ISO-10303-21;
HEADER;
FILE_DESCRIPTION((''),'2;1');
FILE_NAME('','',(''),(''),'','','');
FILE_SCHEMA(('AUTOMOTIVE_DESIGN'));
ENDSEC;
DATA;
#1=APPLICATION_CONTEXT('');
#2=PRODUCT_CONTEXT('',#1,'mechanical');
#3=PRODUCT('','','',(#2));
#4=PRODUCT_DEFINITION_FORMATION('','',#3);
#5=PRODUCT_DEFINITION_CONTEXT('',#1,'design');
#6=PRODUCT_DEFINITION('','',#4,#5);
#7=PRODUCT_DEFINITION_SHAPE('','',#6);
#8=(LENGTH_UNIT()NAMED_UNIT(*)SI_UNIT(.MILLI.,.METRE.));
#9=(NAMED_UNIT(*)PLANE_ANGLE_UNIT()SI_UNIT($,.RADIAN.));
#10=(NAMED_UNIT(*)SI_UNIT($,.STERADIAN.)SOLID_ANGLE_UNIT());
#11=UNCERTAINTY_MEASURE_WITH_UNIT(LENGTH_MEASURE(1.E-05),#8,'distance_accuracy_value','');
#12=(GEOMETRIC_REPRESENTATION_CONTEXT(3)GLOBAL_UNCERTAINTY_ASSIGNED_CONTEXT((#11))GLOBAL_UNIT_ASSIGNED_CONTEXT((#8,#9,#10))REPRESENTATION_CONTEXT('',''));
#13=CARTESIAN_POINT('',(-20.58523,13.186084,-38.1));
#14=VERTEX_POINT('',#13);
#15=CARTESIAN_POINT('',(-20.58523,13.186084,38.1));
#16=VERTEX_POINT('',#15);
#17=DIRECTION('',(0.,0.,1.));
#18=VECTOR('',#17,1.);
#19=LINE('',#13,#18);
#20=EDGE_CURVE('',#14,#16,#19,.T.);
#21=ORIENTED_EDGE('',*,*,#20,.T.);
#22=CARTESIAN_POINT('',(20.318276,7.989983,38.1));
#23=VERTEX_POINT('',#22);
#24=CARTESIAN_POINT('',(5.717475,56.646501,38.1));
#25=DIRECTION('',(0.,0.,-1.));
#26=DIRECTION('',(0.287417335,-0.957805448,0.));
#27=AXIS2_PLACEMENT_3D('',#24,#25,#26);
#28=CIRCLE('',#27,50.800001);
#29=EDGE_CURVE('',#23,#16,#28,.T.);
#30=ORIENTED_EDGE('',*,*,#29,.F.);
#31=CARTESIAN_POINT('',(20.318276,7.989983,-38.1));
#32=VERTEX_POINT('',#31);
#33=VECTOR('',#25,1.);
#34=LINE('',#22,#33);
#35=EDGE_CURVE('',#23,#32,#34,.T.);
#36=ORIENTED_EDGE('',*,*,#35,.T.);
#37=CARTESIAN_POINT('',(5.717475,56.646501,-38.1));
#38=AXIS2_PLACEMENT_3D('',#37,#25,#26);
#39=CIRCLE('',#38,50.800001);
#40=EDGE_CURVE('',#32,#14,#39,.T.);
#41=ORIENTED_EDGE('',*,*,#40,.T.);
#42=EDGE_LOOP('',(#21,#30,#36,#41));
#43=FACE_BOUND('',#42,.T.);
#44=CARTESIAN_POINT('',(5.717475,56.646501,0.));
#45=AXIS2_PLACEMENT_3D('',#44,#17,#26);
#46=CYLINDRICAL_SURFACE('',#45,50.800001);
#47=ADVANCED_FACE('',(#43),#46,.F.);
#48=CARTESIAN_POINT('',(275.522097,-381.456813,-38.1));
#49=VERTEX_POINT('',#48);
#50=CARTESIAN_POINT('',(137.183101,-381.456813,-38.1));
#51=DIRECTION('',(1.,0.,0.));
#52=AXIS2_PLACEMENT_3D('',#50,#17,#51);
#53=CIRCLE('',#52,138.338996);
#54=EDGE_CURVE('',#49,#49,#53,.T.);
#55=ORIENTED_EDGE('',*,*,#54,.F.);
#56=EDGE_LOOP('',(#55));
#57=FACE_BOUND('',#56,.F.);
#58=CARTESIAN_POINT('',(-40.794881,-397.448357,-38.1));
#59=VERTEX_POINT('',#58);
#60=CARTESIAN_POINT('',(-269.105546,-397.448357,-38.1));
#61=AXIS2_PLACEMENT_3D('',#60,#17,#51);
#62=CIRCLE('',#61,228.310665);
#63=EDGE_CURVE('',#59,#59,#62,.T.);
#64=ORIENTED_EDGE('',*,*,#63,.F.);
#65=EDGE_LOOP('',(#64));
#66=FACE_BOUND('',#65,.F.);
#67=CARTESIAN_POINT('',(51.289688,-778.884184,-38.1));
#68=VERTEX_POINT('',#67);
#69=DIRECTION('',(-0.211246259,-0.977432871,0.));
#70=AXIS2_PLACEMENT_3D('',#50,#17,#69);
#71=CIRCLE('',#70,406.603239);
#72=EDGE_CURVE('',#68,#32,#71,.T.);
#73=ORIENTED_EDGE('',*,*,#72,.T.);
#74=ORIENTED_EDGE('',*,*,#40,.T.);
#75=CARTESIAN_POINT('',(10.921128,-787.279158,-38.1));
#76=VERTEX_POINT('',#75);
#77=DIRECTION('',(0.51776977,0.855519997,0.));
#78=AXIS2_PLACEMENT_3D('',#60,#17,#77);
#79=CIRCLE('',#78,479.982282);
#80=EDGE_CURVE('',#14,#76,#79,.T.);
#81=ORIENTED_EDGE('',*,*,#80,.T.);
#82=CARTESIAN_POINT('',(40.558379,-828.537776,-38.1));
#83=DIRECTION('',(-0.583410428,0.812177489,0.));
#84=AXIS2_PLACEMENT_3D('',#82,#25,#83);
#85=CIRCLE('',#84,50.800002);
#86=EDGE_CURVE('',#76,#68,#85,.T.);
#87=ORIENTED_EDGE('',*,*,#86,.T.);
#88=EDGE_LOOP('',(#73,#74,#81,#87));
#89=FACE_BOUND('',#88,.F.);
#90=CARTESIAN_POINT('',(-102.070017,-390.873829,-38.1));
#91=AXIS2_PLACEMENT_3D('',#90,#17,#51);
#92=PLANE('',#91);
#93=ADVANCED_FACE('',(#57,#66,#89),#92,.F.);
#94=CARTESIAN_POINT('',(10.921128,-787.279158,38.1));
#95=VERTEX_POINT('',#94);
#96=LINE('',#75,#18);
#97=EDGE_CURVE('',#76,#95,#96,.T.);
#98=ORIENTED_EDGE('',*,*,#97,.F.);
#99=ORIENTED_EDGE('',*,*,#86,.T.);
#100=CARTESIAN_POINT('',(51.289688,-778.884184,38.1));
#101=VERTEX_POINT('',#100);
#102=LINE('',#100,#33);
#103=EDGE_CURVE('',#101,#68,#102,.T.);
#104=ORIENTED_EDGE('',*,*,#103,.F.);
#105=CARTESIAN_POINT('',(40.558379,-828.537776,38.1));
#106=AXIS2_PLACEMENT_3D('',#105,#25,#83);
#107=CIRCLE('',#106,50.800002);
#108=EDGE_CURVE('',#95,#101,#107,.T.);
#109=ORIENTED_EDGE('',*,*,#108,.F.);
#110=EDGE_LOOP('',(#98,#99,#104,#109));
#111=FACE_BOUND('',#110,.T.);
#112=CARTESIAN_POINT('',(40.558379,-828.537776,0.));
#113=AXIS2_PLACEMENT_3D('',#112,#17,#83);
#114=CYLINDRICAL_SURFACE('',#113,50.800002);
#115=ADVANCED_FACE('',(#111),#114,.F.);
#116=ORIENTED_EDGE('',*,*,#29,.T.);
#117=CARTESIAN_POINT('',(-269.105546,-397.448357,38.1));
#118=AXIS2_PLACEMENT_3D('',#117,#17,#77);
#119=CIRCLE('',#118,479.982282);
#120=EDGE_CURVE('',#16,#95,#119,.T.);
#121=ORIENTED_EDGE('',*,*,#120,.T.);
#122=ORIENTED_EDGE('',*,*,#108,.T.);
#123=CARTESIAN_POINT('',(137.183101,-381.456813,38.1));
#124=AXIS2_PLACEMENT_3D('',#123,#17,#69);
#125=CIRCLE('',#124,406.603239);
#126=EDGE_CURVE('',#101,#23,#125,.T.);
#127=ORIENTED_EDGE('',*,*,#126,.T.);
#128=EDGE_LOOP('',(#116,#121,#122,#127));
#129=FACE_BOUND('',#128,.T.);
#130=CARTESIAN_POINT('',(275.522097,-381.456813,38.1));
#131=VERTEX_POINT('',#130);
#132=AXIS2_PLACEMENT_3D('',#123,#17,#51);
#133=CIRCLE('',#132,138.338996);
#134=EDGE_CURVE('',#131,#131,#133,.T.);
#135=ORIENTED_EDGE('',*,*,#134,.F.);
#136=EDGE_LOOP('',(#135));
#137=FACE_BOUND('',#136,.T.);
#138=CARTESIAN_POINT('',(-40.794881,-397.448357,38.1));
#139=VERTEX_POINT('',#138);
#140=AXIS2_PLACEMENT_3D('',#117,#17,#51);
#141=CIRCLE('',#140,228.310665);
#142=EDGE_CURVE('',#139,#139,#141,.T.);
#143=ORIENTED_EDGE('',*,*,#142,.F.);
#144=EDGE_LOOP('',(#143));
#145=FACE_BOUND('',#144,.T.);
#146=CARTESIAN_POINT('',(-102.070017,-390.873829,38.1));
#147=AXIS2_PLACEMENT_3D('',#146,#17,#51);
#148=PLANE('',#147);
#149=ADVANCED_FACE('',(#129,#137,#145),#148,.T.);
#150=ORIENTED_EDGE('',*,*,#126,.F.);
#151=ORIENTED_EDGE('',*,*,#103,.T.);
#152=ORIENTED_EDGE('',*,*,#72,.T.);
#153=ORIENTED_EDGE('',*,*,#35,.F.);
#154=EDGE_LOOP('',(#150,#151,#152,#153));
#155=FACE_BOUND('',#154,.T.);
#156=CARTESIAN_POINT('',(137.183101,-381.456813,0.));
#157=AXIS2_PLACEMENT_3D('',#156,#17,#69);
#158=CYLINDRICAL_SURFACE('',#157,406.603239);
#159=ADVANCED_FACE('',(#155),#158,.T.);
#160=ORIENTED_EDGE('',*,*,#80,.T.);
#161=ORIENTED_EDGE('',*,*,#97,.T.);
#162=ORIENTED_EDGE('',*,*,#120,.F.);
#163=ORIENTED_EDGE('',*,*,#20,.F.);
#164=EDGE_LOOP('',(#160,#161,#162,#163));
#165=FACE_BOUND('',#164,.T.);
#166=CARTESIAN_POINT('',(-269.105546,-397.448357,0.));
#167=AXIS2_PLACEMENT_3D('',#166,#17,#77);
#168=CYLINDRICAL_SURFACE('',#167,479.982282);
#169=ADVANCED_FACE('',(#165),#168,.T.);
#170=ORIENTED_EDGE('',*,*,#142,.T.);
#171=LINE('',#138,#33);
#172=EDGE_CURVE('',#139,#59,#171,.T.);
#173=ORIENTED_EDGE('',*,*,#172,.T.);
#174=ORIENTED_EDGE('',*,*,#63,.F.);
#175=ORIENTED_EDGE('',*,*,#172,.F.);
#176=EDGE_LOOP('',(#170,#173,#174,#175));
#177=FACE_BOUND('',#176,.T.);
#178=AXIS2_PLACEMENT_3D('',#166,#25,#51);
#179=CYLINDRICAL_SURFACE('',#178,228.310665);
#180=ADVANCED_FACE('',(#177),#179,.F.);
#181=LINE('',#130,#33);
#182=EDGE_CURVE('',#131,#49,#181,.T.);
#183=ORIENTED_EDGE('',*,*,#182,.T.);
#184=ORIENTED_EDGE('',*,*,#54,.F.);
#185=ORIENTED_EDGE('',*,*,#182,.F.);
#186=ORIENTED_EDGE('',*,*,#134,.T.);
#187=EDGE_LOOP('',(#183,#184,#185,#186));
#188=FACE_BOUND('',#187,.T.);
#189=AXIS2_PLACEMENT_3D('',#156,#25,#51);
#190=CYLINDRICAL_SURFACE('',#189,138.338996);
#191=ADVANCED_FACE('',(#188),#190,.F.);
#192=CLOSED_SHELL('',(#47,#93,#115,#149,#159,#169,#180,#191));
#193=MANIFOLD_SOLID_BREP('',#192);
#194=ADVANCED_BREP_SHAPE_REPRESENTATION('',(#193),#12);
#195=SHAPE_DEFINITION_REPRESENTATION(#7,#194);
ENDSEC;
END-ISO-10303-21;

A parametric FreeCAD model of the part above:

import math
import FreeCAD as App
import Part
import Sketcher
from FreeCAD import Vector
Q = App.Units.Quantity

doc = App.newDocument("Part")
body = doc.addObject("PartDesign::Body", "Body")

# Sketch on XY plane
sketch1 = body.newObject("Sketcher::SketchObject", "Sketch")
sketch1.AttachmentSupport = (doc.getObject("XY_Plane"), [""])
sketch1.MapMode = "FlatFace"
sketch1.addGeometry([
    Part.ArcOfCircle(Part.Circle(Vector(6, 57, 0), Vector(0, 0, 1), 51), math.radians(-121), math.radians(-73)),  # 0
    Part.ArcOfCircle(Part.Circle(Vector(-269, -397, 0), Vector(0, 0, 1), 480), math.radians(59), math.radians(306)),  # 1
    Part.ArcOfCircle(Part.Circle(Vector(41, -829, 0), Vector(0, 0, 1), 51), math.radians(78), math.radians(126)),  # 2
    Part.ArcOfCircle(Part.Circle(Vector(137, -381, 0), Vector(0, 0, 1), 407), math.radians(-102), math.radians(107)),  # 3
    Part.Circle(Vector(-269, -397, 0), Vector(0, 0, 1), 228),  # 4
    Part.Circle(Vector(137, -381, 0), Vector(0, 0, 1), 138),  # 5
], False)
sketch1.addConstraint([
    Sketcher.Constraint("Tangent", 0, 1, 1, 1),
    Sketcher.Constraint("Tangent", 1, 2, 2, 2),
    Sketcher.Constraint("Tangent", 2, 1, 3, 1),
    Sketcher.Constraint("Tangent", 3, 2, 0, 2),
    Sketcher.Constraint("Coincident", 4, 3, 1, 3),
    Sketcher.Constraint("Coincident", 5, 3, 3, 3),
    Sketcher.Constraint("Equal", 0, 2),
    Sketcher.Constraint("Radius", 0, Q("2.0000001 in")),
    Sketcher.Constraint("Diameter", 4, Q("456.62133 mm")),
    Sketcher.Constraint("Diameter", 5, Q("276.677992 mm")),
    Sketcher.Constraint("Radius", 3, Q("406.603239 mm")),
    Sketcher.Constraint("Radius", 1, Q("479.982282 mm")),
    Sketcher.Constraint("DistanceY", -1, 1, 0, 3, Q("56.646501 mm")),
    Sketcher.Constraint("DistanceX", -1, 1, 3, 3, Q("137.183101 mm")),
    Sketcher.Constraint("DistanceX", -1, 1, 2, 3, Q("40.558379 mm")),
    Sketcher.Constraint("DistanceX", 0, 1, -1, 1, Q("20.58523 mm")),
])
pad1 = body.newObject("PartDesign::Pad", "Pad")
pad1.Profile = sketch1
pad1.Length = Q("3 in")
pad1.Midplane = True

doc.recompute()
